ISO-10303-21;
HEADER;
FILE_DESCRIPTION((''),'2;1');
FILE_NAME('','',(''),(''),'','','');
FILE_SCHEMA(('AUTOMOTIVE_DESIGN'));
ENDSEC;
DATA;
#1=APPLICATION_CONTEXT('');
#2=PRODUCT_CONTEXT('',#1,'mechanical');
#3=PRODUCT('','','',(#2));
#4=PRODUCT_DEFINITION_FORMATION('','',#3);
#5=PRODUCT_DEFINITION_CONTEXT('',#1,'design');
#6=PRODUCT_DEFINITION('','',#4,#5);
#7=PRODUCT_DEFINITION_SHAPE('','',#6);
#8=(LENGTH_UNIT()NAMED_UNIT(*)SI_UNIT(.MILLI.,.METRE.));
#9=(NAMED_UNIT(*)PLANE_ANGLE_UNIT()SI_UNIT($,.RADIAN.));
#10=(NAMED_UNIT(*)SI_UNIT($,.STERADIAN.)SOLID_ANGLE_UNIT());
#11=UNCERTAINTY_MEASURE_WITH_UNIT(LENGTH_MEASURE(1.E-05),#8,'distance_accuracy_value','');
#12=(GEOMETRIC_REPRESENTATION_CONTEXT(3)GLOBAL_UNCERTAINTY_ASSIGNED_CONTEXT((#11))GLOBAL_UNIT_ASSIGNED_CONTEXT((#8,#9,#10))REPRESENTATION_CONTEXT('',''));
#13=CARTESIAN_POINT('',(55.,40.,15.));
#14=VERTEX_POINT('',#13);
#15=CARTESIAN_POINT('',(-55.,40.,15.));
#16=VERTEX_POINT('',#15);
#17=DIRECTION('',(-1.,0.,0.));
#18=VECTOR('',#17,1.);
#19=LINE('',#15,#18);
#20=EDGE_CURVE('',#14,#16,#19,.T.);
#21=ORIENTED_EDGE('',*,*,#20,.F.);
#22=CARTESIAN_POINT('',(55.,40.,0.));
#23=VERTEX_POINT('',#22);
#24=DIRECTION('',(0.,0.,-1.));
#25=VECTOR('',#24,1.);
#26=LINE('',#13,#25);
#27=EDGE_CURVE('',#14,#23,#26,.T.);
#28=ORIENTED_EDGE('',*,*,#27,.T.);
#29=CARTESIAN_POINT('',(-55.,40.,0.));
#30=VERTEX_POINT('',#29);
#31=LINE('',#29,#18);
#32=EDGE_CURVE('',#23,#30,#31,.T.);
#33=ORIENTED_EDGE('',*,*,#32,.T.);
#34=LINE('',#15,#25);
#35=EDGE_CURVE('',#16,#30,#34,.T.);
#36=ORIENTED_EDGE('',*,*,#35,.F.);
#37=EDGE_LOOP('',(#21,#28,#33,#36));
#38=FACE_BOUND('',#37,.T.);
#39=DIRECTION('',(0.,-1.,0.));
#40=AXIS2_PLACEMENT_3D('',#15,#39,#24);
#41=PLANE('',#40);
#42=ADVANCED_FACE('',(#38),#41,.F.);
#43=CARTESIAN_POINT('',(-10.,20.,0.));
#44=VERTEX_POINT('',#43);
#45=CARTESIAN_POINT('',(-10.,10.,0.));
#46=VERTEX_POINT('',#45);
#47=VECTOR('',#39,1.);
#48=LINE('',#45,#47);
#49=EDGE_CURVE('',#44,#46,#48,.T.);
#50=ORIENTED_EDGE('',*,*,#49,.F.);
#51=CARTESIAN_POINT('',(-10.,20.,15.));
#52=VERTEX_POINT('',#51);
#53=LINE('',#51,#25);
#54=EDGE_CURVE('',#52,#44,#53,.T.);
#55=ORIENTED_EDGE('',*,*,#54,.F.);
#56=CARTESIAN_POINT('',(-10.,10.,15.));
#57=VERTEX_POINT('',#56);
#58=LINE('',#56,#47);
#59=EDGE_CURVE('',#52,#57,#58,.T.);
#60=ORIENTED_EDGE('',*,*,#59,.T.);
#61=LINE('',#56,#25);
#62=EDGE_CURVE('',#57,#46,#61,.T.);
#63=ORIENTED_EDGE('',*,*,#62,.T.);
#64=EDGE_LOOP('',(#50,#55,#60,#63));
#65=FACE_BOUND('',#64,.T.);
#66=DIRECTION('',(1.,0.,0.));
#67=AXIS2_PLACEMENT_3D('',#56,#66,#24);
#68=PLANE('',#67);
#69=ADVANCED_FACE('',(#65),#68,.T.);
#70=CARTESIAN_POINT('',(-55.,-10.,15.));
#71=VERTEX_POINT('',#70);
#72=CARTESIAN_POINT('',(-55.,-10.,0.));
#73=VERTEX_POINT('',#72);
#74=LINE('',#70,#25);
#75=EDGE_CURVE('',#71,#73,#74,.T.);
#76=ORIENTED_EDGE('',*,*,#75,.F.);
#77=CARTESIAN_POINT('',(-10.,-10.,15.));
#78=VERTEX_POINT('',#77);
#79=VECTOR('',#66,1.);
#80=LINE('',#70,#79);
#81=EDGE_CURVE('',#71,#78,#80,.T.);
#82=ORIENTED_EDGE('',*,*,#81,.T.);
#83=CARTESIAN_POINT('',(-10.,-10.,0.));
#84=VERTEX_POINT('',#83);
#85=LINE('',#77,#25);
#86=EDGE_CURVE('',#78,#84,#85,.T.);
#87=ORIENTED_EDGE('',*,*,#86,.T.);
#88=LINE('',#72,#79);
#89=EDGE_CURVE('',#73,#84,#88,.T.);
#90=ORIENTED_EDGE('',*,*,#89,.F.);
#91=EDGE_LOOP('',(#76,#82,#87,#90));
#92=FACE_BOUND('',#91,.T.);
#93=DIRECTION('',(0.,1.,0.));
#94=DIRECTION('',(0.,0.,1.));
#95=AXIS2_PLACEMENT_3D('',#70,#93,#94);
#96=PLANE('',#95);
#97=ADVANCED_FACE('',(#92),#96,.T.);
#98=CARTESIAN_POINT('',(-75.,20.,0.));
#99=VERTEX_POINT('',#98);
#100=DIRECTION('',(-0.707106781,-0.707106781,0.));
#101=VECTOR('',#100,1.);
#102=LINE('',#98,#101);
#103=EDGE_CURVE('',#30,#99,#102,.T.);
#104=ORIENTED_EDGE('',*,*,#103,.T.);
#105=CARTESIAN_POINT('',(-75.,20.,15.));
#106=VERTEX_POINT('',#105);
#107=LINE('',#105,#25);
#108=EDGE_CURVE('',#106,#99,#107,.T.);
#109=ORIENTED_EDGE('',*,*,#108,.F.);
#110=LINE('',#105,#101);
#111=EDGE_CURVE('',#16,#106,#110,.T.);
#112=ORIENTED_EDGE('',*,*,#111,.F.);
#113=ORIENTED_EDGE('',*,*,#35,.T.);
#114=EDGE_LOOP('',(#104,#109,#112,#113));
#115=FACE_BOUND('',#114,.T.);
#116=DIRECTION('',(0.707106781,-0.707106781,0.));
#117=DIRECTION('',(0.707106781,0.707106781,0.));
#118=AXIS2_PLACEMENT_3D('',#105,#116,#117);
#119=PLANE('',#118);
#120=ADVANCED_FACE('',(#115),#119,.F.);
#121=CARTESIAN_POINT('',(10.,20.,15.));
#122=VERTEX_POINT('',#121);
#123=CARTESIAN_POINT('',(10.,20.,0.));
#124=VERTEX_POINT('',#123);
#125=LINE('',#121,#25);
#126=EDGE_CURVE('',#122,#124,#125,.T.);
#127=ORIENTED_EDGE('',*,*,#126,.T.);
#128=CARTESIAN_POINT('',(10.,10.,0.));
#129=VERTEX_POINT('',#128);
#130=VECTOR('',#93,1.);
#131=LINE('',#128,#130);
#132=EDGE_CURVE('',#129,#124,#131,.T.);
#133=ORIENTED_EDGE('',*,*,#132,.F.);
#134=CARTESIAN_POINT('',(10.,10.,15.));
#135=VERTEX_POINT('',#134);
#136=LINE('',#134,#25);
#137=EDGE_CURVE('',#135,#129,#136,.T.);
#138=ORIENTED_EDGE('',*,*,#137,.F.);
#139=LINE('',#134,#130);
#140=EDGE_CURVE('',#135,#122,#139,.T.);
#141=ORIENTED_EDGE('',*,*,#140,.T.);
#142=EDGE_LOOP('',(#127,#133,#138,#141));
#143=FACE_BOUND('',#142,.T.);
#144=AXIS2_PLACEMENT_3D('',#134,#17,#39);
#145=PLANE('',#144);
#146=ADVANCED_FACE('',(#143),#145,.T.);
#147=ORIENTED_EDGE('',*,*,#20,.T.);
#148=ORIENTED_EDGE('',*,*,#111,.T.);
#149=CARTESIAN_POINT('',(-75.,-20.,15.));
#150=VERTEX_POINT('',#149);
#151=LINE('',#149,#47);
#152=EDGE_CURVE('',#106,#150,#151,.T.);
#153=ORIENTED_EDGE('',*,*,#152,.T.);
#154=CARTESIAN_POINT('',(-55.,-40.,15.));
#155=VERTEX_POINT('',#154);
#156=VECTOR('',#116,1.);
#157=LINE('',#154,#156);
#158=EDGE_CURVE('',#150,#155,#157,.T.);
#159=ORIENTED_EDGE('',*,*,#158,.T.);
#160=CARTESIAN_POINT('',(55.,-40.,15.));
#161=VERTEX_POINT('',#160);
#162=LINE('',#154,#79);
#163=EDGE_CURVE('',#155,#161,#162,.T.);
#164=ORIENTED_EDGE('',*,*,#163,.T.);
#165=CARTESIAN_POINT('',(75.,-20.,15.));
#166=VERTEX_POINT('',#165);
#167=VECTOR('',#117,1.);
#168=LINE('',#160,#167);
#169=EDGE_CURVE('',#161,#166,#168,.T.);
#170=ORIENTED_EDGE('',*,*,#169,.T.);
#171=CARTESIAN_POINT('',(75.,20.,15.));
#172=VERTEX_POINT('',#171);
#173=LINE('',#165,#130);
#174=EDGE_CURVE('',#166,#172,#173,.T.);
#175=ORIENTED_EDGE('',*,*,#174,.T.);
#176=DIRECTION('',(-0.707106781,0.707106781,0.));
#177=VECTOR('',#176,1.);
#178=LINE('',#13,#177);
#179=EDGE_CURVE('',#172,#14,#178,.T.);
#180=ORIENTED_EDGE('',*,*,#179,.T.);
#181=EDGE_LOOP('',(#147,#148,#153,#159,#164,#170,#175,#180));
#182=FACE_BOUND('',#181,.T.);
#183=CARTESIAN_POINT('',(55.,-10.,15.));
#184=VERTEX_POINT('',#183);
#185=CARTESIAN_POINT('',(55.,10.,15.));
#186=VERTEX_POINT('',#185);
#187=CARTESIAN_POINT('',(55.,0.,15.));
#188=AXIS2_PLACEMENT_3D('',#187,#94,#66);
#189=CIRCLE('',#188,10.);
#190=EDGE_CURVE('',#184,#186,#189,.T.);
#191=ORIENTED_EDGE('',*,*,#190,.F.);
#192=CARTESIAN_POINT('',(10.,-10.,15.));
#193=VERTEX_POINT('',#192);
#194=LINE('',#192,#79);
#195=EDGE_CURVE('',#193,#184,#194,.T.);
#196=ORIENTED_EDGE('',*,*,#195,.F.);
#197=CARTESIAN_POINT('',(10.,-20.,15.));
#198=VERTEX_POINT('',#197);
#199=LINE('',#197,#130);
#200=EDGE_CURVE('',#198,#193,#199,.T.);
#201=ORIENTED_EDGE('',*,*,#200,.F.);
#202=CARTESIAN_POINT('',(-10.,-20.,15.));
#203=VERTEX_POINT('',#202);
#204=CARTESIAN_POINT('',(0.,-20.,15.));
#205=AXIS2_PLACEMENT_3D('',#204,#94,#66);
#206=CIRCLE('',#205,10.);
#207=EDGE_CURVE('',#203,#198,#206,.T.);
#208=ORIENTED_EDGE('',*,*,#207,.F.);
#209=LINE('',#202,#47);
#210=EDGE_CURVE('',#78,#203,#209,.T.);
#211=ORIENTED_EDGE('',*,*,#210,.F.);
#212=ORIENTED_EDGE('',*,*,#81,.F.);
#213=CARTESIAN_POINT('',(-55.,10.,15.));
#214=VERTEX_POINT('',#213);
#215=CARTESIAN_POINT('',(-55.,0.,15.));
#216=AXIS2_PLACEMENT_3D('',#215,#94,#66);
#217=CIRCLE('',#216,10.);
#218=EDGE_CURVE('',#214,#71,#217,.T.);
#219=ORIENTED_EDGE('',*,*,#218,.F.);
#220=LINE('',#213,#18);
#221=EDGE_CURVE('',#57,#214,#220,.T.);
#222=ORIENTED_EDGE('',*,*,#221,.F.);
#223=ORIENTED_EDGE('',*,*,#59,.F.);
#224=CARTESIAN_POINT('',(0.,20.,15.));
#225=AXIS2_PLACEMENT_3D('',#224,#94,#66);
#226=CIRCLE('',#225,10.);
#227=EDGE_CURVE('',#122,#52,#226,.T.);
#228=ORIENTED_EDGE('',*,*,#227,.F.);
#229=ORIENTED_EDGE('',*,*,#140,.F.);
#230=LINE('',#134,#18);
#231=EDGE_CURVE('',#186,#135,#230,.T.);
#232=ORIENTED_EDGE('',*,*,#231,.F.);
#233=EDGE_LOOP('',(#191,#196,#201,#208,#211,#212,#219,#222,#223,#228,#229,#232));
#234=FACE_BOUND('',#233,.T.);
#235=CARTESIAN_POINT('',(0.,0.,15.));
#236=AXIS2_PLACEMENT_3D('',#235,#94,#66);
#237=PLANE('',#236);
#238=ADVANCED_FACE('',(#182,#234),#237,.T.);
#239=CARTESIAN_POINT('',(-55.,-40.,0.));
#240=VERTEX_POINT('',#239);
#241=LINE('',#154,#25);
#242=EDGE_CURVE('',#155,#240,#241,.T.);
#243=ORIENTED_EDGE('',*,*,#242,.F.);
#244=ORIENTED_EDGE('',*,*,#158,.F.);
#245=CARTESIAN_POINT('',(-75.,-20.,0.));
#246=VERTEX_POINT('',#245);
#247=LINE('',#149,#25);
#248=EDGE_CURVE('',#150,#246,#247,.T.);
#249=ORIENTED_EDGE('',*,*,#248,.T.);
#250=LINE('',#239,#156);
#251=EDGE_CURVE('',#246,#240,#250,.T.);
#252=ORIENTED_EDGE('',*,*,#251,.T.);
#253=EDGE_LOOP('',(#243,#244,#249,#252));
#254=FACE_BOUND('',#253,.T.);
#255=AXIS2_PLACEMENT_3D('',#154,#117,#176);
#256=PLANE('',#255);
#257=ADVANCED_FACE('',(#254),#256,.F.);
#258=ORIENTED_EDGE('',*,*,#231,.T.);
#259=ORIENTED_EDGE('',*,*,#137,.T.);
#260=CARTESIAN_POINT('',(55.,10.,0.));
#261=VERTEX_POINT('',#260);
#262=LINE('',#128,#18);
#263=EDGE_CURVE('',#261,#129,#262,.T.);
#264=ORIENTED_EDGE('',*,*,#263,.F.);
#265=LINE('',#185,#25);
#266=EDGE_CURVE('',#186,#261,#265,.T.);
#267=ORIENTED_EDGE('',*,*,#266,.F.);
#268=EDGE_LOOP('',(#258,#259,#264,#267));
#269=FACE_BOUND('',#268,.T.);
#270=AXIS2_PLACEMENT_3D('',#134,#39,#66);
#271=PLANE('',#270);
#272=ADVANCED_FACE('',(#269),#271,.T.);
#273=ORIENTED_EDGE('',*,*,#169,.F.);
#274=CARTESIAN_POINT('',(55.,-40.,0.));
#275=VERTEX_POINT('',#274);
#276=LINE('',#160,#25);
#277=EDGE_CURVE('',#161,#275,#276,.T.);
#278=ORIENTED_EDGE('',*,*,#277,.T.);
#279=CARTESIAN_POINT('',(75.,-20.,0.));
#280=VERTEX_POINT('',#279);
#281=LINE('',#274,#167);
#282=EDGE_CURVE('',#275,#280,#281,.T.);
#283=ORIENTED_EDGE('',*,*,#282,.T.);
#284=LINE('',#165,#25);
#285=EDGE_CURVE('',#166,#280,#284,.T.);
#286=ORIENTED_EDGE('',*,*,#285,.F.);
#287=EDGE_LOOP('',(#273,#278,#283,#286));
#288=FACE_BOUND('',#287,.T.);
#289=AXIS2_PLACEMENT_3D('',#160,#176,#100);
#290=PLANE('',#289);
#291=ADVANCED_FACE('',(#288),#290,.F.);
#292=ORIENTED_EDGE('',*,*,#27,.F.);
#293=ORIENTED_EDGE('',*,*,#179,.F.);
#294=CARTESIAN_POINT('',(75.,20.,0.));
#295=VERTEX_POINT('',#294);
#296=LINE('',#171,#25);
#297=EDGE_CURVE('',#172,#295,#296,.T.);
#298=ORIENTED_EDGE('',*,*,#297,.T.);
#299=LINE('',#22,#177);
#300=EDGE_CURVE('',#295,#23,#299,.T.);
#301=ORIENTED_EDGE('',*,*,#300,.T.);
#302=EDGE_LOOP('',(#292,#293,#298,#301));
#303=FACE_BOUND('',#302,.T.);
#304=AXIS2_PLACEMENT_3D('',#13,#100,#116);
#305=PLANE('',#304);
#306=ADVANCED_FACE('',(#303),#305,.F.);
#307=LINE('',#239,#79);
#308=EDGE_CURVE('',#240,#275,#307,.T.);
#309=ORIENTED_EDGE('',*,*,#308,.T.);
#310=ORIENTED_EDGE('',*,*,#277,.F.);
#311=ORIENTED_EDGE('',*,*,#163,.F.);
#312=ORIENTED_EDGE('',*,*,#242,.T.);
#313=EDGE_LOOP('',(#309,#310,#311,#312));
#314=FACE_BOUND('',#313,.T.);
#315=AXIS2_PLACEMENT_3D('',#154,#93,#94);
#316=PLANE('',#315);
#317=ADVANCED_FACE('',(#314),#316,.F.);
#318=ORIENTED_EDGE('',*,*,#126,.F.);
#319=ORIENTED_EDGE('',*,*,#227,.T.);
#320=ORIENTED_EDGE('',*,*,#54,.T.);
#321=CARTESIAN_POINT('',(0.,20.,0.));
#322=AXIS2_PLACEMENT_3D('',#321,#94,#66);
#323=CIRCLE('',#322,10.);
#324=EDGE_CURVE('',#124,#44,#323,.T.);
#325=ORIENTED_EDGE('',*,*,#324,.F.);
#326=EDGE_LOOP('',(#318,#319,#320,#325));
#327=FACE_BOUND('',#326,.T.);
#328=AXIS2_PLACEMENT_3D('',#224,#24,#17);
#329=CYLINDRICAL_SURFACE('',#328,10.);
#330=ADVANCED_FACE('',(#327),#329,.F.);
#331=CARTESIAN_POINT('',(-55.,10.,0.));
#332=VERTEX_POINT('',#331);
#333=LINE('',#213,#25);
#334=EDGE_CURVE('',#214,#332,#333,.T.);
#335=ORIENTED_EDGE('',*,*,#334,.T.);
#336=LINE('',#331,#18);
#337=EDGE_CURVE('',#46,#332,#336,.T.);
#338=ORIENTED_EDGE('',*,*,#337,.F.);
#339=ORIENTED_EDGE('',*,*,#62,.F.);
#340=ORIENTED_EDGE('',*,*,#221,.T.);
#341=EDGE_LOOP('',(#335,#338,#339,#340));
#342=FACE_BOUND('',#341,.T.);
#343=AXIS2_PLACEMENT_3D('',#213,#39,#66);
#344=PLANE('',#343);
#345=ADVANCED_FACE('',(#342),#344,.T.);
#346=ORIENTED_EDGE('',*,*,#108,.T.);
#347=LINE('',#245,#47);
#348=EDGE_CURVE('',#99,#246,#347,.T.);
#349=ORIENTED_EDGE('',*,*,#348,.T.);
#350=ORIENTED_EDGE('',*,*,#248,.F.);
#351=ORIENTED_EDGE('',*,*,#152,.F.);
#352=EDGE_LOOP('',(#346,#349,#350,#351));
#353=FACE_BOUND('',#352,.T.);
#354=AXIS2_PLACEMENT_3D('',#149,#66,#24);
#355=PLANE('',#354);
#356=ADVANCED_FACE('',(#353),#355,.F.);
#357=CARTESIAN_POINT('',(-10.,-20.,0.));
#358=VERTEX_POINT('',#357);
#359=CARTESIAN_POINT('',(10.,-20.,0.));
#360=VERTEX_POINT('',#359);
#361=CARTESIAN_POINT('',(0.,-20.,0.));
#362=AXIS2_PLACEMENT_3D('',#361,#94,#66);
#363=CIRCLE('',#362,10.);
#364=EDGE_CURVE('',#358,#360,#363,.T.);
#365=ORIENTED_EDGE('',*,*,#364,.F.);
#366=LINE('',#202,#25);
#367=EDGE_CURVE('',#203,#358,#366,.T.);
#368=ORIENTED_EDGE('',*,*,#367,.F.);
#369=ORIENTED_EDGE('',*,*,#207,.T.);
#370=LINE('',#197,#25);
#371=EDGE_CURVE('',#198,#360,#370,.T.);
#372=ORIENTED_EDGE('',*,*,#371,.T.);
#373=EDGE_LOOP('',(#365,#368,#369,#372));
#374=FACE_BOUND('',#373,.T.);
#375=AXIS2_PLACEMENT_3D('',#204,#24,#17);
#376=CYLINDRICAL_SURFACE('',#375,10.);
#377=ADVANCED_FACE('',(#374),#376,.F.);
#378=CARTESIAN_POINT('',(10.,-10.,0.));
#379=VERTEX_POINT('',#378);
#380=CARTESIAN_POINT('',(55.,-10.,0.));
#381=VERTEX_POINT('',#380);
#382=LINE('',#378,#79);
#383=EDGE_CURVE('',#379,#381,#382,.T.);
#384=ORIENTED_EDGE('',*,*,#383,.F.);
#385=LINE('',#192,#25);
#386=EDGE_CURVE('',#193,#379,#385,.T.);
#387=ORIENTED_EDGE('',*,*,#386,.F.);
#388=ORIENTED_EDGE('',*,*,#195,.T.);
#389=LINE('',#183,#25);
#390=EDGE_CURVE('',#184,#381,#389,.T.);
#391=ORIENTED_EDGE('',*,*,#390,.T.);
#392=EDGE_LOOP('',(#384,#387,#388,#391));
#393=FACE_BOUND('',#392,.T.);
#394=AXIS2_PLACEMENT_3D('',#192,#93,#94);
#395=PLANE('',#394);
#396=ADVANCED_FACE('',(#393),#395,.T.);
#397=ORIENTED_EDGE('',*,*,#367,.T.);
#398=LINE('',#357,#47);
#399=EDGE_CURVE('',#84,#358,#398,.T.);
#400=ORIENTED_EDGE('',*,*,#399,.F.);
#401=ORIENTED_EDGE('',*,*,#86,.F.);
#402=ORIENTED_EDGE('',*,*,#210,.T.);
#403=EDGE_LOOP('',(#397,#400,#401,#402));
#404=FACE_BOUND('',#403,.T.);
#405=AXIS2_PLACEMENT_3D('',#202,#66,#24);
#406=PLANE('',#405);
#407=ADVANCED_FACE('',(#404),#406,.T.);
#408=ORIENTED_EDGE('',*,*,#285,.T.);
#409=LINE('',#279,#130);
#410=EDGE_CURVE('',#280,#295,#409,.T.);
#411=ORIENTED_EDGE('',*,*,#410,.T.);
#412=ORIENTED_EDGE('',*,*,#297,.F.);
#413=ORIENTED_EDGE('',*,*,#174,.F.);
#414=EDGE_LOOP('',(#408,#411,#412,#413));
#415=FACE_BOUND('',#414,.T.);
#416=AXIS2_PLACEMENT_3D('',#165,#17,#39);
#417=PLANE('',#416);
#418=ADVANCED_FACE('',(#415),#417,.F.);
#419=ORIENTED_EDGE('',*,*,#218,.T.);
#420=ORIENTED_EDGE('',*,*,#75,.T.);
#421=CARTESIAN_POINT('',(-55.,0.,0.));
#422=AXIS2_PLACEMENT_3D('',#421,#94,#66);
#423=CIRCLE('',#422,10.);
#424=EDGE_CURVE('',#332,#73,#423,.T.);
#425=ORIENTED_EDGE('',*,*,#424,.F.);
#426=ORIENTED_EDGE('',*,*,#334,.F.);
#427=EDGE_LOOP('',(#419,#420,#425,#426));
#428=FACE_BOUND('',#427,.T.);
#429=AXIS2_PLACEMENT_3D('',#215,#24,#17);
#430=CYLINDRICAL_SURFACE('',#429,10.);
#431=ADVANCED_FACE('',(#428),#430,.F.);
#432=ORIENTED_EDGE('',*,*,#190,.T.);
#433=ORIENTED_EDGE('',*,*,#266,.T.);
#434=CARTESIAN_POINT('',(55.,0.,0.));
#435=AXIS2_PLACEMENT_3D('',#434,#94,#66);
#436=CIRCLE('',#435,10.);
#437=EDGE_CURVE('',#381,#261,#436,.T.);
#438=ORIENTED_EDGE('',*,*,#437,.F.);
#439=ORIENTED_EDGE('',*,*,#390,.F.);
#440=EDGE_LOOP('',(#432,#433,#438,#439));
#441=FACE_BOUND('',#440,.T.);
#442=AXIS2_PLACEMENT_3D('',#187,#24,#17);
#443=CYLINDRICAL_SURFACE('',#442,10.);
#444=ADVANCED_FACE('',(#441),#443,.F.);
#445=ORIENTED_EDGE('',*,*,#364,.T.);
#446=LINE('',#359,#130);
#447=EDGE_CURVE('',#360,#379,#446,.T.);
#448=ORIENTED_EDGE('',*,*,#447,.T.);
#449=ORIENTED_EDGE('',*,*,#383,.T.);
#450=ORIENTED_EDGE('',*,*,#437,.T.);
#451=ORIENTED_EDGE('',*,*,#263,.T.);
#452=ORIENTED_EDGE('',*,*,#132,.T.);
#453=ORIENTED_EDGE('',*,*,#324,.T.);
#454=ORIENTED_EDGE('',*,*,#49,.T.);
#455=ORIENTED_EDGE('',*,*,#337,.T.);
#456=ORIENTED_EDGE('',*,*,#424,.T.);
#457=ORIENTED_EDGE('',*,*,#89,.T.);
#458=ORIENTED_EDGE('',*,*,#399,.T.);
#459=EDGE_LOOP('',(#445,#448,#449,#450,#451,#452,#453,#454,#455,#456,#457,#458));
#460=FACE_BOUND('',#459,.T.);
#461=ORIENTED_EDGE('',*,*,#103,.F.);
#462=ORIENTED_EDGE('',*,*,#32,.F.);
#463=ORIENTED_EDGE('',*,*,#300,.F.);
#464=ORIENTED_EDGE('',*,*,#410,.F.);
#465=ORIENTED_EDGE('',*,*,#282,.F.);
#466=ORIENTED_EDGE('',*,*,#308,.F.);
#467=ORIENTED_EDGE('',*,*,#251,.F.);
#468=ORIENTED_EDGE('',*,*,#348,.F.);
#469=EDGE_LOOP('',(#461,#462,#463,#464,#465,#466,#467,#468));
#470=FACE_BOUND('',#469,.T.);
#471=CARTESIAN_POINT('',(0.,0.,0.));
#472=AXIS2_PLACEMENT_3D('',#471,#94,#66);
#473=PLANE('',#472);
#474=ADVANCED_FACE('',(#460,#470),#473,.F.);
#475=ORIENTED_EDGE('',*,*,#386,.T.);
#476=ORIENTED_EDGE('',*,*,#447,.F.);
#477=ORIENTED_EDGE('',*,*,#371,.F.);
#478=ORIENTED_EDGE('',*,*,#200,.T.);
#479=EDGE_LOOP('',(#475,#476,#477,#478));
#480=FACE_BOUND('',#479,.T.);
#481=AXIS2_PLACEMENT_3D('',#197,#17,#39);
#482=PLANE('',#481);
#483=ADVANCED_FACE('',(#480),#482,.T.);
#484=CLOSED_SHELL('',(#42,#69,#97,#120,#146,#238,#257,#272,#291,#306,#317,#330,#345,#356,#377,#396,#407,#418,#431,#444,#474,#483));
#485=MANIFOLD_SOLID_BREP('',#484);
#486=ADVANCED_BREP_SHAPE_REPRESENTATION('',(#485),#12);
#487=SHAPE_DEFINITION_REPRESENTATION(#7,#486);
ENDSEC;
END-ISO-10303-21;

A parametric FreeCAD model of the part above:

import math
import FreeCAD as App
import Part
import Sketcher
from FreeCAD import Vector
Q = App.Units.Quantity


def add_polygon(sketch, points):
    """Adds a closed chain of lines whose ends are joined by coincident constraints."""
    first, n = sketch.GeometryCount, len(points)
    for a, b in zip(points, points[1:] + points[:1]):
        sketch.addGeometry(Part.LineSegment(App.Vector(*a, 0), App.Vector(*b, 0)), False)
    for i in range(n):
        sketch.addConstraint(Sketcher.Constraint("Coincident", first + i, 2, first + (i + 1) % n, 1))

doc = App.newDocument("Part")
body = doc.addObject("PartDesign::Body", "Body")

# Sketch on XY plane
sketch1 = body.newObject("Sketcher::SketchObject", "Sketch")
sketch1.AttachmentSupport = (doc.getObject("XY_Plane"), [""])
sketch1.MapMode = "FlatFace"
add_polygon(sketch1, [(-55, 40), (-75, 20), (-75, -20), (-55, -40), (55, -40), (75, -20), (75, 20), (55, 40)])  # lines 0-7
sketch1.addGeometry(Part.LineSegment(Vector(-10, 10, 0), Vector(-10, 20, 0)), False)  # 8
sketch1.addGeometry(Part.ArcOfCircle(Part.Circle(Vector(0, 20, 0), Vector(0, 0, 1), 10), math.radians(0), math.radians(180)), False)  # 9
sketch1.addGeometry(Part.LineSegment(Vector(10, 20, 0), Vector(10, 10, 0)), False)  # 10
sketch1.addGeometry(Part.LineSegment(Vector(10, 10, 0), Vector(55, 10, 0)), False)  # 11
sketch1.addGeometry(Part.ArcOfCircle(Part.Circle(Vector(55, 0, 0), Vector(0, 0, 1), 10), math.radians(-90), math.radians(90)), False)  # 12
sketch1.addGeometry(Part.LineSegment(Vector(55, -10, 0), Vector(10, -10, 0)), False)  # 13
sketch1.addGeometry(Part.LineSegment(Vector(10, -10, 0), Vector(10, -20, 0)), False)  # 14
sketch1.addGeometry(Part.ArcOfCircle(Part.Circle(Vector(0, -20, 0), Vector(0, 0, 1), 10), math.radians(180), math.radians(360)), False)  # 15
sketch1.addGeometry(Part.LineSegment(Vector(-10, -20, 0), Vector(-10, -10, 0)), False)  # 16
sketch1.addGeometry(Part.LineSegment(Vector(-10, -10, 0), Vector(-55, -10, 0)), False)  # 17
sketch1.addGeometry(Part.ArcOfCircle(Part.Circle(Vector(-55, 0, 0), Vector(0, 0, 1), 10), math.radians(90), math.radians(270)), False)  # 18
sketch1.addGeometry(Part.LineSegment(Vector(-55, 10, 0), Vector(-10, 10, 0)), False)  # 19
sketch1.addConstraint([
    Sketcher.Constraint("Tangent", 8, 2, 9, 2),
    Sketcher.Constraint("Tangent", 9, 1, 10, 1),
    Sketcher.Constraint("Coincident", 10, 2, 11, 1),
    Sketcher.Constraint("Tangent", 11, 2, 12, 2),
    Sketcher.Constraint("Tangent", 12, 1, 13, 1),
    Sketcher.Constraint("Coincident", 13, 2, 14, 1),
    Sketcher.Constraint("Tangent", 14, 2, 15, 2),
    Sketcher.Constraint("Tangent", 15, 1, 16, 1),
    Sketcher.Constraint("Coincident", 16, 2, 17, 1),
    Sketcher.Constraint("Tangent", 17, 2, 18, 2),
    Sketcher.Constraint("Tangent", 18, 1, 19, 1),
    Sketcher.Constraint("Coincident", 19, 2, 8, 1),
    Sketcher.Constraint("Vertical", 1),
    Sketcher.Constraint("Horizontal", 3),
    Sketcher.Constraint("Vertical", 5),
    Sketcher.Constraint("Horizontal", 7),
    Sketcher.Constraint("Vertical", 8),
    Sketcher.Constraint("Vertical", 10),
    Sketcher.Constraint("Horizontal", 11),
    Sketcher.Constraint("Horizontal", 13),
    Sketcher.Constraint("Vertical", 14),
    Sketcher.Constraint("Vertical", 16),
    Sketcher.Constraint("Horizontal", 17),
    Sketcher.Constraint("Horizontal", 19),
    Sketcher.Constraint("Equal", 9, 12),
    Sketcher.Constraint("Equal", 12, 15),
    Sketcher.Constraint("Equal", 15, 18),
    Sketcher.Constraint("Symmetric", 9, 3, 15, 3, -1, 1),
    Sketcher.Constraint("Symmetric", 12, 3, 18, 3, -1, 1),
    Sketcher.Constraint("Symmetric", 0, 2, 4, 2, -1, 1),
    Sketcher.Constraint("Symmetric", 2, 2, 6, 2, -1, 1),
    Sketcher.Constraint("Symmetric", 13, 2, 16, 2, -2),
    Sketcher.Constraint("Perpendicular", 0, 2),
    Sketcher.Constraint("Perpendicular", 2, 4),
    Sketcher.Constraint("Perpendicular", 4, 6),
    Sketcher.Constraint("Horizontal", 9, 3, 0, 2),
    Sketcher.Constraint("Horizontal", 15, 3, 1, 2),
    Sketcher.Constraint("Vertical", 18, 3, 2, 2),
    Sketcher.Constraint("Vertical", 12, 3, 3, 2),
    Sketcher.Constraint("Radius", 9, Q("10 mm")),
    Sketcher.Constraint("DistanceX", 3, 1, 3, 2, Q("110 mm")),
    Sketcher.Constraint("DistanceY", 1, 2, 1, 1, Q("40 mm")),
    Sketcher.Constraint("DistanceX", 0, 2, -1, 1, Q("75 mm")),
])
pad1 = body.newObject("PartDesign::Pad", "Pad")
pad1.Profile = sketch1
pad1.Length = 15

doc.recompute()
